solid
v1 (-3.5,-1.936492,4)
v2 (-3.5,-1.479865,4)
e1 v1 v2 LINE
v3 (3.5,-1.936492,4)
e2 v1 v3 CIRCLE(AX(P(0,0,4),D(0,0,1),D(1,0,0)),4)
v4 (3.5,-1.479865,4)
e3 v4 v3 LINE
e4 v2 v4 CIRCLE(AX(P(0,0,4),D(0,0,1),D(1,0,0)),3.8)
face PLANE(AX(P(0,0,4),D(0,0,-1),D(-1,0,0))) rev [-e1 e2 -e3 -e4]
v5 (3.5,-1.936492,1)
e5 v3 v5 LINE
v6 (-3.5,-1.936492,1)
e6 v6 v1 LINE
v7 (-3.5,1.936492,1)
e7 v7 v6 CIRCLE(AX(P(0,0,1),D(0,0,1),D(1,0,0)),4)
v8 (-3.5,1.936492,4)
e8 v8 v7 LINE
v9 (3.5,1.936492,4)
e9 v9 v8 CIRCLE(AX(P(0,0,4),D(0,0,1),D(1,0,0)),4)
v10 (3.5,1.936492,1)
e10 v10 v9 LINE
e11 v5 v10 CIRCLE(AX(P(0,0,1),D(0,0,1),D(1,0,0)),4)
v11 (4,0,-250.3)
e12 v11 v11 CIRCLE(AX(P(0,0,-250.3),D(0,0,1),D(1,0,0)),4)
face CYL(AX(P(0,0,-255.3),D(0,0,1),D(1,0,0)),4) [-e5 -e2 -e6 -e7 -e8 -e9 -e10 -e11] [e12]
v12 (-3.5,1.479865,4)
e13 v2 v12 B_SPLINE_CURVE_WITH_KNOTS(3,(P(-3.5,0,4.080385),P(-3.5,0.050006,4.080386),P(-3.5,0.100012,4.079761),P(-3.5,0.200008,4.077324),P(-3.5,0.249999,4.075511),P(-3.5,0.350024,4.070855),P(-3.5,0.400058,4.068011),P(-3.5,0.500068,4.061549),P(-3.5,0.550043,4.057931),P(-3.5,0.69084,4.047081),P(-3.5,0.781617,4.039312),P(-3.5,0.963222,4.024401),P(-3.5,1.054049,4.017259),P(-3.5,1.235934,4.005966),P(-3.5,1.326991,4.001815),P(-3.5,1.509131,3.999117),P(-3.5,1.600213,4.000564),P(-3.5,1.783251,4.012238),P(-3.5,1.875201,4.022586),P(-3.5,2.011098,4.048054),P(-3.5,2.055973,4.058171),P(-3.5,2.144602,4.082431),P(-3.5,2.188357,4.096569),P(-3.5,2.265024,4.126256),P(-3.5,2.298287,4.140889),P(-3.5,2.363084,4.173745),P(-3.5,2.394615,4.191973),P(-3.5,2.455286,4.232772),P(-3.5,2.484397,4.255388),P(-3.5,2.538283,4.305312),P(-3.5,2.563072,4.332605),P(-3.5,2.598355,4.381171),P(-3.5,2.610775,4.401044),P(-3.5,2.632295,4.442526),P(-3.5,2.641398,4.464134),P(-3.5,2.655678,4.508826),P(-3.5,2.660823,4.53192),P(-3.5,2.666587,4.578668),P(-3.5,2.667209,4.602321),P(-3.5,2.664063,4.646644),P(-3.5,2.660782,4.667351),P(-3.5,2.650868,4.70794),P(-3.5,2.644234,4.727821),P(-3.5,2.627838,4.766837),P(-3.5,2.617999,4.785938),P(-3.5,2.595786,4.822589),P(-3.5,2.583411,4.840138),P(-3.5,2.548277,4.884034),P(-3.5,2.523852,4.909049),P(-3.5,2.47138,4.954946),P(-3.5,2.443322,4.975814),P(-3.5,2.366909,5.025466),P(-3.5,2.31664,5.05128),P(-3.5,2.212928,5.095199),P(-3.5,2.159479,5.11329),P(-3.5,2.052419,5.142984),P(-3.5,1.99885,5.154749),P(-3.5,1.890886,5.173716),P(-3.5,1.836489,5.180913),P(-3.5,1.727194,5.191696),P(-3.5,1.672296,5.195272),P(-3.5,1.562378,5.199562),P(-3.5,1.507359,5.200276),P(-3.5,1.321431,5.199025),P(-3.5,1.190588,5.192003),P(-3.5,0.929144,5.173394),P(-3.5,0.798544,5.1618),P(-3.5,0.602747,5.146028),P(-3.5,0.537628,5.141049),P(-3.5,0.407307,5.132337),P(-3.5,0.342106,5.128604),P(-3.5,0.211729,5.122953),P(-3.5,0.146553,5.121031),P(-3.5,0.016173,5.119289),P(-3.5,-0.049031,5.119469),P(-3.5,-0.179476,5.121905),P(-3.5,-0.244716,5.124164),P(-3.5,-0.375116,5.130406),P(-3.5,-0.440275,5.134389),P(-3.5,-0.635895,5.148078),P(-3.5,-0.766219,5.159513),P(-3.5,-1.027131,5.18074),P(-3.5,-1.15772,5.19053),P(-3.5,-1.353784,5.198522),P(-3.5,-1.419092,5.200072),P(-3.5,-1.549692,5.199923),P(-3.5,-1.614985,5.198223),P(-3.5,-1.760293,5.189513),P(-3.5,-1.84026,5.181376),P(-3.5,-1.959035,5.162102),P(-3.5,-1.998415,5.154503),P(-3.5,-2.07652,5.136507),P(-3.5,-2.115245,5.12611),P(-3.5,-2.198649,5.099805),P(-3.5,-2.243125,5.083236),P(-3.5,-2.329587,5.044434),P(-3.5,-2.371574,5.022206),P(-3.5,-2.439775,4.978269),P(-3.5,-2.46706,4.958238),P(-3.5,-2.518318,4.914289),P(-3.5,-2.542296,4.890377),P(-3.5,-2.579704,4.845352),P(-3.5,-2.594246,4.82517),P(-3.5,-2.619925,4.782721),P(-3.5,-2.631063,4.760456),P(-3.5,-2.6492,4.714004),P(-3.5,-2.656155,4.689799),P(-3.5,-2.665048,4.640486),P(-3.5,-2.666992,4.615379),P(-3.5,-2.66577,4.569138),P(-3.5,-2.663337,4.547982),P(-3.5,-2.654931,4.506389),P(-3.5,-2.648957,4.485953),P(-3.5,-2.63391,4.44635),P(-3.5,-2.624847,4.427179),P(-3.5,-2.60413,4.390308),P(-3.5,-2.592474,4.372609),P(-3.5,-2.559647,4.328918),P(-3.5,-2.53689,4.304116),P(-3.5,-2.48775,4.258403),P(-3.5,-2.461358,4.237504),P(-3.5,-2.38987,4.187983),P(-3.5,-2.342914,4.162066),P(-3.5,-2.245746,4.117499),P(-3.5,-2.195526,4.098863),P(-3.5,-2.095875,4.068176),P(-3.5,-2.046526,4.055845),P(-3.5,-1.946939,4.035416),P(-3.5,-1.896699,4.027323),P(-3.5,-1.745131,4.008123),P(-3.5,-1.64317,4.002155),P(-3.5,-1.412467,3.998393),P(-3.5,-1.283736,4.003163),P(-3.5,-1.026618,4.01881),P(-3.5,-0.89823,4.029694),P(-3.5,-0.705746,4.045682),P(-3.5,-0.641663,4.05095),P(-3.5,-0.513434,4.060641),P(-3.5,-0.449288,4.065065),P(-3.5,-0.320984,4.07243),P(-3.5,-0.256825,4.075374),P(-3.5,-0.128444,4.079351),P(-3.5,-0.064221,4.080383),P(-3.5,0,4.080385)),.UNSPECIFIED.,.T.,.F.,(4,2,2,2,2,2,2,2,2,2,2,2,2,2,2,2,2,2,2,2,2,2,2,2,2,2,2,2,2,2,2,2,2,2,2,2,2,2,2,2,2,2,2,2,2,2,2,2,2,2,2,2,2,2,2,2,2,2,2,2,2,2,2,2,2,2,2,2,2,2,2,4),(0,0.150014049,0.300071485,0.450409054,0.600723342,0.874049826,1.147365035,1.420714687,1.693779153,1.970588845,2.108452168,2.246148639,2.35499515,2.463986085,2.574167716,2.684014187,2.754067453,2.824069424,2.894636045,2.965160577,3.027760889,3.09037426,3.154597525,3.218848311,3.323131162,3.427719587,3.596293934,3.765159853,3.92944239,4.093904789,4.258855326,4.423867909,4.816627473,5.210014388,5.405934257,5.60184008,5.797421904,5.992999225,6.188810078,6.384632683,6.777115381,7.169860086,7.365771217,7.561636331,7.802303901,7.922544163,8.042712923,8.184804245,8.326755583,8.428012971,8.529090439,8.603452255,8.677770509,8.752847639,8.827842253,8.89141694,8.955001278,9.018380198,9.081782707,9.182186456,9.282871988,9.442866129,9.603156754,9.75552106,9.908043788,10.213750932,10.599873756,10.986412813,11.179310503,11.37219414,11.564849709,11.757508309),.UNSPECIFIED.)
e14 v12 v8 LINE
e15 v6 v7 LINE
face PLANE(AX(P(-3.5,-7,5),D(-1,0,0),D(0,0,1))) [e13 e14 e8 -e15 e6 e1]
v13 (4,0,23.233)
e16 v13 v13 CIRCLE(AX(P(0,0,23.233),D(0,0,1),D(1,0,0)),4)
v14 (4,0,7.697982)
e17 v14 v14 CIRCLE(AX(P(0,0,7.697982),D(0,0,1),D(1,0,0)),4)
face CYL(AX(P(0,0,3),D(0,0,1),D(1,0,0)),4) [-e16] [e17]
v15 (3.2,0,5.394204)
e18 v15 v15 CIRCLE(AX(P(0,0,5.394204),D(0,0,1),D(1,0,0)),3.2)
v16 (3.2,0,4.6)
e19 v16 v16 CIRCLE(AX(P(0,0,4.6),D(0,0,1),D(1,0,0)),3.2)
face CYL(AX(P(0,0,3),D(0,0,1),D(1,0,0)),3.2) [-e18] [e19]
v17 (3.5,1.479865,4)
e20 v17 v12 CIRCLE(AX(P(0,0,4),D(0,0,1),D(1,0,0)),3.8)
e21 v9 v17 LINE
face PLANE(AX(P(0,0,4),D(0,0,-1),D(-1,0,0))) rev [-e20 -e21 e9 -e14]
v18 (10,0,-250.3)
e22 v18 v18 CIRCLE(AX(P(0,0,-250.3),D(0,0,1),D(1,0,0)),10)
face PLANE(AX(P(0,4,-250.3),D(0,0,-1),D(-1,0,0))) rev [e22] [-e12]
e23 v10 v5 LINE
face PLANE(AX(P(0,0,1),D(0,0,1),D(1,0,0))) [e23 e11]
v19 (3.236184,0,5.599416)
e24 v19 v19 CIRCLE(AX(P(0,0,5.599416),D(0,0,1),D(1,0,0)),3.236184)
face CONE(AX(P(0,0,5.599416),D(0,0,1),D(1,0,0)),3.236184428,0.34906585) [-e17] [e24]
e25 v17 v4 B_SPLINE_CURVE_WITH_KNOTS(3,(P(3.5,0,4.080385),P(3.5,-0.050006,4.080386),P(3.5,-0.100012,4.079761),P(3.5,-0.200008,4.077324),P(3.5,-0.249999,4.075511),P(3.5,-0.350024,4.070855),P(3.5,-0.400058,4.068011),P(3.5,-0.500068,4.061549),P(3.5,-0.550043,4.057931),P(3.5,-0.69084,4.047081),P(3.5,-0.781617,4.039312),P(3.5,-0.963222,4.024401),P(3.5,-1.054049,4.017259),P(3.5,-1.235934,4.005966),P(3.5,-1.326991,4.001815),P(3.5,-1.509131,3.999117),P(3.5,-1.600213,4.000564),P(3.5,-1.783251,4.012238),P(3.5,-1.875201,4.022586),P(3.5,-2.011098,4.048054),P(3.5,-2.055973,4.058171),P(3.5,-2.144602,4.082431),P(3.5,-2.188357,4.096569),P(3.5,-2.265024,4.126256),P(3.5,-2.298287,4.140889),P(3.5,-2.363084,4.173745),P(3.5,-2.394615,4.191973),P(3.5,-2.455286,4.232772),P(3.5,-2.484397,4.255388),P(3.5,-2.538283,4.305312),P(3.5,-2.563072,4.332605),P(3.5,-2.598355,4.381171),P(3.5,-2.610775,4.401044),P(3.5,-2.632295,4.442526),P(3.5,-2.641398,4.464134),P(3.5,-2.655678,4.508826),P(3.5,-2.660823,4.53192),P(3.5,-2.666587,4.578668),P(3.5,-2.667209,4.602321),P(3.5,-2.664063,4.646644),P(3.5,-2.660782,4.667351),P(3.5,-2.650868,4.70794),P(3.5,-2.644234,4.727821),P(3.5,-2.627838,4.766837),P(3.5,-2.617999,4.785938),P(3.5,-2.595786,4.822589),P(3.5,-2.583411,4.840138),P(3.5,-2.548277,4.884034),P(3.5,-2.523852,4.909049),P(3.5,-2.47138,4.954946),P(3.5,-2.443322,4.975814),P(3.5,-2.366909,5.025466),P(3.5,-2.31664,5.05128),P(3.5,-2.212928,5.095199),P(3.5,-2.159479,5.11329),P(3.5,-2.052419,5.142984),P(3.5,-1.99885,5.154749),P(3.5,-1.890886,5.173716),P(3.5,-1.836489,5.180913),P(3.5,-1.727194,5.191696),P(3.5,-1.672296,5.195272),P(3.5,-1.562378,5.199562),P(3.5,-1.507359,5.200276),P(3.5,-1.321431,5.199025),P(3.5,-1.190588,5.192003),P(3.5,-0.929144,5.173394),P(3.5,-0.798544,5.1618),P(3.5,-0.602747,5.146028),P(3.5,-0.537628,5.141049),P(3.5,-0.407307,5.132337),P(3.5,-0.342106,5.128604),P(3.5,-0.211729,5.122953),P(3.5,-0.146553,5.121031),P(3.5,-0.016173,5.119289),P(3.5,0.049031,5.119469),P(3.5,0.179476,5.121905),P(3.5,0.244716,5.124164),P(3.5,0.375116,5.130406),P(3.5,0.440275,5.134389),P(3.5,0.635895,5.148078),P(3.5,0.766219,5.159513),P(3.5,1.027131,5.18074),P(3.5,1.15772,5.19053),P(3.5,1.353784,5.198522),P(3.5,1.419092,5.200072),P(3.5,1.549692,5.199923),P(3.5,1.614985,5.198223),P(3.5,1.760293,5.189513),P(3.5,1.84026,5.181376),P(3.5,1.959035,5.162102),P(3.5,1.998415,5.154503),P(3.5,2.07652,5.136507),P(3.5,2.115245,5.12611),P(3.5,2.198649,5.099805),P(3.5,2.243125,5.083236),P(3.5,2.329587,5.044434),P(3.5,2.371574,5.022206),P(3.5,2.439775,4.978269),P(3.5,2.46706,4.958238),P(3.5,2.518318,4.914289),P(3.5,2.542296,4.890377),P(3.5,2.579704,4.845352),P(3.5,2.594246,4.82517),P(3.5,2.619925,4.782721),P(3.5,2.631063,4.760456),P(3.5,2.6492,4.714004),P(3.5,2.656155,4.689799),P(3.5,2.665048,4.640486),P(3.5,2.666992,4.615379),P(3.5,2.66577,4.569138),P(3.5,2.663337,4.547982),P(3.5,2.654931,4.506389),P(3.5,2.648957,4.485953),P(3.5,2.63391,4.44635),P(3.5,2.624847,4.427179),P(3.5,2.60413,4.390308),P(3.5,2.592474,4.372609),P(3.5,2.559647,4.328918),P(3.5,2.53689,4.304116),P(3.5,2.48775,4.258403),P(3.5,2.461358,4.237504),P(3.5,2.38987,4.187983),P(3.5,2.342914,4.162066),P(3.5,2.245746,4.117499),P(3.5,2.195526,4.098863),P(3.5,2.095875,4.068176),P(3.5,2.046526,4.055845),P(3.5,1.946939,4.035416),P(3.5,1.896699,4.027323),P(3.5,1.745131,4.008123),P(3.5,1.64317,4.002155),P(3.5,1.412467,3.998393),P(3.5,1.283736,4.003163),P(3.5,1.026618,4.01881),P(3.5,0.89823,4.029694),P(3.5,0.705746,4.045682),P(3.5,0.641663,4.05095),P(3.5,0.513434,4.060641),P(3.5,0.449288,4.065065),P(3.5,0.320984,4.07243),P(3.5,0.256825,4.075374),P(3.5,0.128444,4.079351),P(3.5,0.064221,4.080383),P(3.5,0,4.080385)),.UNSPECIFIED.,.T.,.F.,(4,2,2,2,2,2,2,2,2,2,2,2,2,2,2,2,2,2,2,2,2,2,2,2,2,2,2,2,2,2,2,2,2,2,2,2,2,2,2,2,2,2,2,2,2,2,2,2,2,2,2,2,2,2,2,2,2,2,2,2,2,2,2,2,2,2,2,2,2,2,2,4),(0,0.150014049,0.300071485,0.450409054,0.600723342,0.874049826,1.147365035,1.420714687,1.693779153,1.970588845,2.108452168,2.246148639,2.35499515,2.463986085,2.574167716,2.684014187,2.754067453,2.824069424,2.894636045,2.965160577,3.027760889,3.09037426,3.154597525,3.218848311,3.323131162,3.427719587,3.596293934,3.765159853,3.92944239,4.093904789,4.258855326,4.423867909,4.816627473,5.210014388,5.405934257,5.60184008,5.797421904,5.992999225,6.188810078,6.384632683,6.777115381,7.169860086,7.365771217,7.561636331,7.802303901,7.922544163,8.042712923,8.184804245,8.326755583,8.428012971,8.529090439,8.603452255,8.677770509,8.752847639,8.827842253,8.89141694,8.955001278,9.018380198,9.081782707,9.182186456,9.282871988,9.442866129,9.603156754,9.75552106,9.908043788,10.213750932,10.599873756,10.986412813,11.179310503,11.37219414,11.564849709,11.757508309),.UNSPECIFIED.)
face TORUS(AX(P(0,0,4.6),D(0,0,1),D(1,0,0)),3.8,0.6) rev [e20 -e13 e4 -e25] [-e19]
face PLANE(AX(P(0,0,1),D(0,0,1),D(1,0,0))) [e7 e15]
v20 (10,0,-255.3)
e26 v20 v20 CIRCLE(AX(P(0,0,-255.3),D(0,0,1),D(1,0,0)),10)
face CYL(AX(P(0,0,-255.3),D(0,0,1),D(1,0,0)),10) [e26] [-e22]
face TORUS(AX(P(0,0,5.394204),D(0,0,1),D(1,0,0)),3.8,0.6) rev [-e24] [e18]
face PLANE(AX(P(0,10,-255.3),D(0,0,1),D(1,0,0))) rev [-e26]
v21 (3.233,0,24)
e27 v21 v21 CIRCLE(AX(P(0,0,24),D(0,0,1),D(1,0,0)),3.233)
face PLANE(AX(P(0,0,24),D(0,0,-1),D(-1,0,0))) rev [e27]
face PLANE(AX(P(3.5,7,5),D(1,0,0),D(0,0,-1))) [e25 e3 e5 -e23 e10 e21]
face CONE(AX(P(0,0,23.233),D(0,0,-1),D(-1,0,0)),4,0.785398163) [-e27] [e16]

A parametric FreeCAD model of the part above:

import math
import FreeCAD as App
import Part
import Sketcher

V = App.Vector
Q = App.Units.Quantity


def add_polygon(sketch, points):
    """Adds a closed chain of lines whose ends are joined by coincident constraints."""
    first, n = sketch.GeometryCount, len(points)
    for a, b in zip(points, points[1:] + points[:1]):
        sketch.addGeometry(Part.LineSegment(App.Vector(*a, 0), App.Vector(*b, 0)), False)
    for i in range(n):
        sketch.addConstraint(Sketcher.Constraint("Coincident", first + i, 2, first + (i + 1) % n, 1))

doc = App.newDocument("Part")
body = doc.addObject("PartDesign::Body", "Body")

# Sketch on YZ plane
sketch1 = body.newObject("Sketcher::SketchObject", "Sketch")
sketch1.AttachmentSupport = (doc.getObject("YZ_Plane"), [""])
sketch1.MapMode = "FlatFace"
add_polygon(sketch1, [(4, 4), (0, 4), (0, -255.3), (10, -255.3), (10, -250.3), (4, -250.3)])  # lines 0-5
sketch1.addConstraint([
    Sketcher.Constraint("Horizontal", 0),
    Sketcher.Constraint("Vertical", 1),
    Sketcher.Constraint("Horizontal", 2),
    Sketcher.Constraint("Vertical", 3),
    Sketcher.Constraint("Horizontal", 4),
    Sketcher.Constraint("Vertical", 5),
    Sketcher.Constraint("PointOnObject", 0, 2, -2),
    Sketcher.Constraint("DistanceX", 0, 2, 0, 1, 4.0),
    Sketcher.Constraint("DistanceX", 2, 1, 2, 2, 10.0),
    Sketcher.Constraint("DistanceY", 3, 1, 3, 2, 5.0),
    Sketcher.Constraint("DistanceY", 1, 2, 1, 1, 259.3),
    Sketcher.Constraint("DistanceY", -1, 1, 0, 2, 4.0),
])
revolution = body.newObject("PartDesign::Revolution", "Revolution")
revolution.Profile = sketch1
revolution.ReferenceAxis = (sketch1, ["V_Axis"])
revolution.Angle = 360

# Sketch on YZ plane
sketch2 = body.newObject("Sketcher::SketchObject", "Sketch001")
sketch2.AttachmentSupport = (doc.getObject("YZ_Plane"), [""])
sketch2.MapMode = "FlatFace"
sketch2.addGeometry([
    Part.LineSegment(V(3.233, 24, 0), V(0, 24, 0)),  # 0
    Part.LineSegment(V(0, 24, 0), V(0, 3, 0)),  # 1
    Part.LineSegment(V(0, 3, 0), V(4, 3, 0)),  # 2
    Part.LineSegment(V(4, 3, 0), V(4, 4, 0)),  # 3
    Part.LineSegment(V(4, 4, 0), V(3.8, 4, 0)),  # 4
    Part.ArcOfCircle(Part.Circle(V(3.8, 4.6, 0), V(0, 0, 1), 0.6), math.radians(180), math.radians(270)),  # 5
    Part.LineSegment(V(3.2, 4.6, 0), V(3.2, 5.394204, 0)),  # 6
    Part.ArcOfCircle(Part.Circle(V(3.8, 5.394204, 0), V(0, 0, 1), 0.6), math.radians(160), math.radians(180)),  # 7
    Part.LineSegment(V(3.236184, 5.599416, 0), V(4, 7.697982, 0)),  # 8
    Part.LineSegment(V(4, 7.697982, 0), V(4, 23.233, 0)),  # 9
    Part.LineSegment(V(4, 23.233, 0), V(3.233, 24, 0)),  # 10
], False)
sketch2.addConstraint([
    Sketcher.Constraint("Coincident", 0, 2, 1, 1),
    Sketcher.Constraint("Coincident", 1, 2, 2, 1),
    Sketcher.Constraint("Coincident", 2, 2, 3, 1),
    Sketcher.Constraint("Coincident", 3, 2, 4, 1),
    Sketcher.Constraint("Tangent", 4, 2, 5, 2),
    Sketcher.Constraint("Tangent", 5, 1, 6, 1),
    Sketcher.Constraint("Tangent", 6, 2, 7, 2),
    Sketcher.Constraint("Tangent", 7, 1, 8, 1),
    Sketcher.Constraint("Coincident", 8, 2, 9, 1),
    Sketcher.Constraint("Coincident", 9, 2, 10, 1),
    Sketcher.Constraint("Coincident", 10, 2, 0, 1),
    Sketcher.Constraint("Horizontal", 0),
    Sketcher.Constraint("Vertical", 1),
    Sketcher.Constraint("Horizontal", 2),
    Sketcher.Constraint("Vertical", 3),
    Sketcher.Constraint("Horizontal", 4),
    Sketcher.Constraint("Vertical", 6),
    Sketcher.Constraint("Vertical", 9),
    Sketcher.Constraint("Equal", 5, 7),
    Sketcher.Constraint("PointOnObject", 0, 2, -2),
    Sketcher.Constraint("Vertical", 3, 2, 8, 2),
    Sketcher.Constraint("Radius", 5, 0.6),
    Sketcher.Constraint("DistanceX", 2, 1, 2, 2, 4.0),
    Sketcher.Constraint("DistanceY", 1, 2, 1, 1, 21.0),
    Sketcher.Constraint("DistanceY", 3, 1, 3, 2, 1.0),
    Sketcher.Constraint("Angle", 8, Q("70 deg")),
    Sketcher.Constraint("Angle", 10, Q("135 deg")),
    Sketcher.Constraint("DistanceX", 4, 2, 4, 1, 0.2),
    Sketcher.Constraint("DistanceY", -1, 1, 0, 2, 24.0),
    Sketcher.Constraint("DistanceX", 0, 2, 0, 1, 3.233),
    Sketcher.Constraint("DistanceY", 9, 1, 9, 2, 15.535018),
])
revolution2 = body.newObject("PartDesign::Revolution", "Revolution001")
revolution2.Profile = sketch2
revolution2.ReferenceAxis = (sketch2, ["V_Axis"])
revolution2.Angle = 360

# Sketch on XY plane
sketch3 = body.newObject("Sketcher::SketchObject", "Sketch002")
sketch3.AttachmentSupport = (doc.getObject("XY_Plane"), [""])
sketch3.MapMode = "FlatFace"
sketch3.AttachmentOffset = App.Placement(V(0, 0, 1), App.Rotation())
add_polygon(sketch3, [(-7, 14), (-7, -7), (-3.5, -7), (-3.5, 7), (3.5, 7), (3.5, -7), (7, -7), (7, 14)])  # lines 0-7
sketch3.addConstraint([
    Sketcher.Constraint("Vertical", 0),
    Sketcher.Constraint("Horizontal", 1),
    Sketcher.Constraint("Vertical", 2),
    Sketcher.Constraint("Horizontal", 3),
    Sketcher.Constraint("Vertical", 4),
    Sketcher.Constraint("Horizontal", 5),
    Sketcher.Constraint("Vertical", 6),
    Sketcher.Constraint("Horizontal", 7),
    Sketcher.Constraint("Symmetric", 1, 2, 3, 2, -1, 1),
    Sketcher.Constraint("Symmetric", 0, 2, 5, 2, -2),
    Sketcher.Constraint("Equal", 7, 2),
    Sketcher.Constraint("DistanceX", 3, 1, 3, 2, 7.0),
    Sketcher.Constraint("DistanceX", 7, 2, 7, 1, 14.0),
    Sketcher.Constraint("DistanceY", 0, 2, 0, 1, 21.0),
])
pocket1 = body.newObject("PartDesign::Pocket", "Pocket")
pocket1.Profile = sketch3
pocket1.Length = 4
pocket1.Reversed = True

doc.recompute()
